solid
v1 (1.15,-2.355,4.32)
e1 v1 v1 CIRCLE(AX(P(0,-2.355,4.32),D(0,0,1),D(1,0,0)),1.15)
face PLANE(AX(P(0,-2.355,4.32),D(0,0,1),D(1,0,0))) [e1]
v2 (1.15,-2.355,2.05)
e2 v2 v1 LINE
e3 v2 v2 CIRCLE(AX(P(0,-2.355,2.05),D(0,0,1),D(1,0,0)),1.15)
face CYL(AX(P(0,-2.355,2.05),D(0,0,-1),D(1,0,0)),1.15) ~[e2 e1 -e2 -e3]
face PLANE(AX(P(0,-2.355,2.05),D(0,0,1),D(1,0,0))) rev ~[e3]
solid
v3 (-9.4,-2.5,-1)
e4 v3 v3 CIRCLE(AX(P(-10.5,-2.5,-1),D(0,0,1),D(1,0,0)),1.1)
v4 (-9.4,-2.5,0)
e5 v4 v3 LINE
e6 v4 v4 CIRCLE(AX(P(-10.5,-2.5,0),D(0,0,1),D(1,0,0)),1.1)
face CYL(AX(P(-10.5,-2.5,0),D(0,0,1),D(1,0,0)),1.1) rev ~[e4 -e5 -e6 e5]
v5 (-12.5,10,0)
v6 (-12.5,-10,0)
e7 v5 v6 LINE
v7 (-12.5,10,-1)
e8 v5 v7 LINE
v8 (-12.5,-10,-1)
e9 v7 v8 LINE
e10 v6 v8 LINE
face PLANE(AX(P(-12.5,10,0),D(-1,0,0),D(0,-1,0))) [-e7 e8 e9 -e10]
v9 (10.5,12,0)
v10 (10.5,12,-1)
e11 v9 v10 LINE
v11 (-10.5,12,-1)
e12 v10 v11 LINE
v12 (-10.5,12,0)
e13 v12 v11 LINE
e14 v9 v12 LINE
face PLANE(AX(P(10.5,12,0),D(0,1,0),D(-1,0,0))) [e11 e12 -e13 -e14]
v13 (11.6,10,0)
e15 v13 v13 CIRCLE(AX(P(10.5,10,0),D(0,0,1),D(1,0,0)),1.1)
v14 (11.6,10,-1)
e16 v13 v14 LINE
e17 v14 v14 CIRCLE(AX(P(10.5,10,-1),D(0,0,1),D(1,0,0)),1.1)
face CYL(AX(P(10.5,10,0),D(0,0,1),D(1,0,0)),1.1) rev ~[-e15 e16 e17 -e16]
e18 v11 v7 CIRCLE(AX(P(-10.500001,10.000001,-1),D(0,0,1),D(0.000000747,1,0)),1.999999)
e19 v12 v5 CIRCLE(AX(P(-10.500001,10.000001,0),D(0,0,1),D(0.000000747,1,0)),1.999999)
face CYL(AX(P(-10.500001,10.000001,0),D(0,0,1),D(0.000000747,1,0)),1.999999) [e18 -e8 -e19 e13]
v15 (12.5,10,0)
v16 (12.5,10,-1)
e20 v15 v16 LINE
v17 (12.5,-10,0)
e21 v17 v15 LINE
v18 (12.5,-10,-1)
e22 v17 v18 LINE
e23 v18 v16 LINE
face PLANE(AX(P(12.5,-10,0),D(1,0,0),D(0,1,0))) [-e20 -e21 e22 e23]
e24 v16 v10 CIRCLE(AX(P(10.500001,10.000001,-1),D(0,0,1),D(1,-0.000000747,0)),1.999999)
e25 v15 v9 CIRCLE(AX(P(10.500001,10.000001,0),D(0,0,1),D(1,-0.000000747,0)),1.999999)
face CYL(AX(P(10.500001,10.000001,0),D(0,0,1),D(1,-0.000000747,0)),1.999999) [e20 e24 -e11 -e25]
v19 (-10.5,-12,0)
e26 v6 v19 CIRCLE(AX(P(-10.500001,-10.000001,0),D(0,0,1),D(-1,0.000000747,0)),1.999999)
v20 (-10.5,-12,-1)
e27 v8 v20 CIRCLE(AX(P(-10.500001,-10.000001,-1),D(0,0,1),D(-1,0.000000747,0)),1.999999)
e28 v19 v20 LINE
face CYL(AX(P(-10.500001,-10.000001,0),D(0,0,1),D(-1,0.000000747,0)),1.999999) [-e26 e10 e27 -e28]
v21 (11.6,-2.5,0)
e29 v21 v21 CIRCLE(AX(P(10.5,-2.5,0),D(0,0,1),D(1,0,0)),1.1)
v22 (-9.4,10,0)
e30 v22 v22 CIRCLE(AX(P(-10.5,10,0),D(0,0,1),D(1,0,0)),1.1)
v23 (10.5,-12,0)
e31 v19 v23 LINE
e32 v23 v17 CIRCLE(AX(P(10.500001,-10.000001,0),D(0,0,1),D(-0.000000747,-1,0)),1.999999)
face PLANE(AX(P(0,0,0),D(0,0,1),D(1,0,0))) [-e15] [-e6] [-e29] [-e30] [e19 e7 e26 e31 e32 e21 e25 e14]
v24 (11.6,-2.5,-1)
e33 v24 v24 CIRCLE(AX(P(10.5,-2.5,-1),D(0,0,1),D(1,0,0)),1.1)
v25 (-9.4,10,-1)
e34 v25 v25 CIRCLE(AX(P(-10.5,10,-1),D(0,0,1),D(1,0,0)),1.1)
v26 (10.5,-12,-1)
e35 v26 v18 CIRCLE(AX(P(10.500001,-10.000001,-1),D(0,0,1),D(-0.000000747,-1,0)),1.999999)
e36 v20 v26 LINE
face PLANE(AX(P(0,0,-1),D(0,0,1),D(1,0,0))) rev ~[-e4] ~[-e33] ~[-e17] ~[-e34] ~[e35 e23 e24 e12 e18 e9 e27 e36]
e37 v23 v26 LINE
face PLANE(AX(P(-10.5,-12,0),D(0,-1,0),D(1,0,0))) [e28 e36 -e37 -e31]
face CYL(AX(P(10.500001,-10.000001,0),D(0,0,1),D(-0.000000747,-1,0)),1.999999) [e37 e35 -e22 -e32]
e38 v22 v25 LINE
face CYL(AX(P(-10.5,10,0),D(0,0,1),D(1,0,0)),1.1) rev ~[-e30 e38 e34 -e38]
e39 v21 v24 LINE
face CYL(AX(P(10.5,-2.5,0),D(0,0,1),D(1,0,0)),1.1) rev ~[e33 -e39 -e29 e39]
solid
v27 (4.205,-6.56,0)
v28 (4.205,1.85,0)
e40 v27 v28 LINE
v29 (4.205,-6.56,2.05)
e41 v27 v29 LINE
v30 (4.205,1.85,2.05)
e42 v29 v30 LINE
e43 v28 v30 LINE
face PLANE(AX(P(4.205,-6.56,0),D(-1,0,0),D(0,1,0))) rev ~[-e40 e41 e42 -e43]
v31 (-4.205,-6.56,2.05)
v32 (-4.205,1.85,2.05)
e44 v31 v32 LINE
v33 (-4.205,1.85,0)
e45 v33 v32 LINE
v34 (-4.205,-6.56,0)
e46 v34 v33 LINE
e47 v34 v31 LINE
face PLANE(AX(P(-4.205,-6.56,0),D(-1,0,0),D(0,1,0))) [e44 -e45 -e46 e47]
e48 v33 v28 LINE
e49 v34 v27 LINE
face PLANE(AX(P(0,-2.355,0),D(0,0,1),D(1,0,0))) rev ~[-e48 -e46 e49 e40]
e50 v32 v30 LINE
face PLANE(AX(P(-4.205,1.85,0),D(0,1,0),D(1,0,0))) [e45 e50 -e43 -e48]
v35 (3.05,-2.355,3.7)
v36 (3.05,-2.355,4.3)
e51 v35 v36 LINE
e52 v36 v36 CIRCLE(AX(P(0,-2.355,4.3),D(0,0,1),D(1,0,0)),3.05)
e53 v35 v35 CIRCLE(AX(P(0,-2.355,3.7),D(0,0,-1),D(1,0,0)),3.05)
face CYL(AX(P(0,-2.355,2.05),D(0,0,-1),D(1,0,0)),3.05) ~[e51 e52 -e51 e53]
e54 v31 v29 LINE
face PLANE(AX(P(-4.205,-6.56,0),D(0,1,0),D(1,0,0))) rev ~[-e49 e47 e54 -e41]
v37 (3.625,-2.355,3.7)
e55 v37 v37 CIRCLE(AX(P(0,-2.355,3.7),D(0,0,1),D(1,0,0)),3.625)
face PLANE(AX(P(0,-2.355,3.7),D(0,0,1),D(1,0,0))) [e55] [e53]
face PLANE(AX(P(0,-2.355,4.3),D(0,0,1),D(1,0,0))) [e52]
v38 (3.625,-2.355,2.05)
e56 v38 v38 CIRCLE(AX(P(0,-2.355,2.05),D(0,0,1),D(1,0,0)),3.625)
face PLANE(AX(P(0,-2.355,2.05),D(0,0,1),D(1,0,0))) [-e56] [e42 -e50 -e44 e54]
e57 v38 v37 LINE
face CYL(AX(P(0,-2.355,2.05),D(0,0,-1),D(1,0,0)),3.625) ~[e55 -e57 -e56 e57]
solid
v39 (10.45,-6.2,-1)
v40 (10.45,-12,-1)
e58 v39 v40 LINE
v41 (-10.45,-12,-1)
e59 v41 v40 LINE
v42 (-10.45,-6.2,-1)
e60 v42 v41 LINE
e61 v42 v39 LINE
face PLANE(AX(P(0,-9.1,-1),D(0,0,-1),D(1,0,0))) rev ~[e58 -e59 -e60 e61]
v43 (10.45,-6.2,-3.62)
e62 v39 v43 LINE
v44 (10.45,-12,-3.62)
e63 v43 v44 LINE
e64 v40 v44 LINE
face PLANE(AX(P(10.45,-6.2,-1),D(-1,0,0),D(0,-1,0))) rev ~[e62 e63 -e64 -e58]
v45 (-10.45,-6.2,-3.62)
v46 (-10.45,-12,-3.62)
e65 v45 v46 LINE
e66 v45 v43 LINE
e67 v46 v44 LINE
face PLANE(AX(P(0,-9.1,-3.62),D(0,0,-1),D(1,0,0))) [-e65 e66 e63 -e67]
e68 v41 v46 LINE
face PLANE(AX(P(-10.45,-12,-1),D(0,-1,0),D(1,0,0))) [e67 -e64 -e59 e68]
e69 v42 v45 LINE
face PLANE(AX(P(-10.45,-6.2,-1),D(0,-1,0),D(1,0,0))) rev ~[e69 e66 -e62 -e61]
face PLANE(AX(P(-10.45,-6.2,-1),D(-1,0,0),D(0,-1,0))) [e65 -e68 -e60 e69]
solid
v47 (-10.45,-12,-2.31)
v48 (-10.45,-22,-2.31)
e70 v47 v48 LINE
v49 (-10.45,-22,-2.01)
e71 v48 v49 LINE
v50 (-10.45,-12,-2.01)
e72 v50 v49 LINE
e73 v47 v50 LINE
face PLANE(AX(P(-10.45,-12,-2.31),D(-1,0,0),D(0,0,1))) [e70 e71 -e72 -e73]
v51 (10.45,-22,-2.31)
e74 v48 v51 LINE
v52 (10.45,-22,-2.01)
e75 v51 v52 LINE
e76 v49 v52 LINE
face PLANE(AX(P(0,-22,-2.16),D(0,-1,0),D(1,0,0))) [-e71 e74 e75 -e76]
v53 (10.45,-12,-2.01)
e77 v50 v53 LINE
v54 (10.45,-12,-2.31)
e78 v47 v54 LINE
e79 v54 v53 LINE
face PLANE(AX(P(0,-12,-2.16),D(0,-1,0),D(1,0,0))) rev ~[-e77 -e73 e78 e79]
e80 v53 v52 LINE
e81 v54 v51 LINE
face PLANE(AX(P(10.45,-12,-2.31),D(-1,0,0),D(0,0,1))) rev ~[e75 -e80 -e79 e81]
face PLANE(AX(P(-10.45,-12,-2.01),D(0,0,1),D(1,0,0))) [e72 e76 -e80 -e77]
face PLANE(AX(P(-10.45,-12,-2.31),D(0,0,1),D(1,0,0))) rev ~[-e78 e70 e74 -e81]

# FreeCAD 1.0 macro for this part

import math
import FreeCAD as App
import Part
import Sketcher


def add_polygon(sketch, points):
    """Adds a closed chain of lines whose ends are joined by coincident constraints."""
    first, n = sketch.GeometryCount, len(points)
    for a, b in zip(points, points[1:] + points[:1]):
        sketch.addGeometry(Part.LineSegment(App.Vector(*a, 0), App.Vector(*b, 0)), False)
    for i in range(n):
        sketch.addConstraint(Sketcher.Constraint("Coincident", first + i, 2, first + (i + 1) % n, 1))

doc = App.newDocument("Part")
body = doc.addObject("PartDesign::Body", "Body")

# Sketch on XY plane
sketch1 = body.newObject("Sketcher::SketchObject", "Sketch")
sketch1.AttachmentSupport = (doc.getObject("XY_Plane"), [""])
sketch1.MapMode = "FlatFace"
sketch1.addGeometry(Part.ArcOfCircle(Part.Circle(App.Vector(10.5, 10, 0), App.Vector(0, 0, 1), 2), math.radians(0), math.radians(90)), False)
sketch1.addGeometry(Part.LineSegment(App.Vector(10.5, 12, 0), App.Vector(-10.5, 12, 0)), False)
sketch1.addGeometry(Part.ArcOfCircle(Part.Circle(App.Vector(-10.5, 10, 0), App.Vector(0, 0, 1), 2), math.radians(90), math.radians(180)), False)
sketch1.addGeometry(Part.LineSegment(App.Vector(-12.5, 10, 0), App.Vector(-12.5, -10, 0)), False)
sketch1.addGeometry(Part.ArcOfCircle(Part.Circle(App.Vector(-10.5, -10, 0), App.Vector(0, 0, 1), 2), math.radians(180), math.radians(270)), False)
sketch1.addGeometry(Part.LineSegment(App.Vector(-10.5, -12, 0), App.Vector(10.5, -12, 0)), False)
sketch1.addGeometry(Part.ArcOfCircle(Part.Circle(App.Vector(10.5, -10, 0), App.Vector(0, 0, 1), 2), math.radians(-90), math.radians(0)), False)
sketch1.addGeometry(Part.LineSegment(App.Vector(12.5, -10, 0), App.Vector(12.5, 10, 0)), False)
sketch1.addConstraint(Sketcher.Constraint("Tangent", 0, 2, 1, 1))
sketch1.addConstraint(Sketcher.Constraint("Tangent", 1, 2, 2, 1))
sketch1.addConstraint(Sketcher.Constraint("Tangent", 2, 2, 3, 1))
sketch1.addConstraint(Sketcher.Constraint("Tangent", 3, 2, 4, 1))
sketch1.addConstraint(Sketcher.Constraint("Tangent", 4, 2, 5, 1))
sketch1.addConstraint(Sketcher.Constraint("Tangent", 5, 2, 6, 1))
sketch1.addConstraint(Sketcher.Constraint("Tangent", 6, 2, 7, 1))
sketch1.addConstraint(Sketcher.Constraint("Tangent", 7, 2, 0, 1))
sketch1.addConstraint(Sketcher.Constraint("Horizontal", 1))
sketch1.addConstraint(Sketcher.Constraint("Vertical", 3))
sketch1.addConstraint(Sketcher.Constraint("Horizontal", 5))
sketch1.addConstraint(Sketcher.Constraint("Vertical", 7))
sketch1.addConstraint(Sketcher.Constraint("Equal", 0, 2))
sketch1.addConstraint(Sketcher.Constraint("Equal", 2, 4))
sketch1.addConstraint(Sketcher.Constraint("Equal", 4, 6))
sketch1.addConstraint(Sketcher.Constraint("Symmetric", 0, 3, 4, 3, -1, 1))
sketch1.addConstraint(Sketcher.Constraint("Radius", 0, 1.999999))
sketch1.addConstraint(Sketcher.Constraint("DistanceX", 1, 2, 1, 1, 21.0))
sketch1.addConstraint(Sketcher.Constraint("DistanceY", 3, 2, 3, 1, 20.0))
pad1 = body.newObject("PartDesign::Pad", "Pad")
pad1.Profile = sketch1
pad1.Length = 1
pad1.Reversed = True

# Sketch on XY plane
sketch2 = body.newObject("Sketcher::SketchObject", "Sketch001")
sketch2.AttachmentSupport = (doc.getObject("XY_Plane"), [""])
sketch2.MapMode = "FlatFace"
sketch2.addGeometry(Part.Circle(App.Vector(-10.5, 10, 0), App.Vector(0, 0, 1), 1.1), False)
sketch2.addGeometry(Part.Circle(App.Vector(-10.5, -2.5, 0), App.Vector(0, 0, 1), 1.1), False)
sketch2.addGeometry(Part.Circle(App.Vector(10.5, -2.5, 0), App.Vector(0, 0, 1), 1.1), False)
sketch2.addGeometry(Part.Circle(App.Vector(10.5, 10, 0), App.Vector(0, 0, 1), 1.1), False)
sketch2.addConstraint(Sketcher.Constraint("Equal", 0, 1))
sketch2.addConstraint(Sketcher.Constraint("Equal", 1, 2))
sketch2.addConstraint(Sketcher.Constraint("Equal", 2, 3))
sketch2.addConstraint(Sketcher.Constraint("Symmetric", 1, 3, 2, 3, -2))
sketch2.addConstraint(Sketcher.Constraint("Symmetric", 0, 3, 3, 3, -2))
sketch2.addConstraint(Sketcher.Constraint("Vertical", 0, 3, 1, 3))
sketch2.addConstraint(Sketcher.Constraint("Diameter", 0, 2.2))
sketch2.addConstraint(Sketcher.Constraint("DistanceY", -1, 1, 0, 3, 10.0))
sketch2.addConstraint(Sketcher.Constraint("DistanceX", 1, 3, 2, 3, 21.0))
sketch2.addConstraint(Sketcher.Constraint("DistanceY", 1, 3, -1, 1, 2.5))
pocket1 = body.newObject("PartDesign::Pocket", "Pocket")
pocket1.Profile = sketch2
pocket1.Type = "ThroughAll"
body2 = doc.addObject("PartDesign::Body", "Body001")

# Sketch on XY plane
sketch3 = body2.newObject("Sketcher::SketchObject", "Sketch002")
sketch3.AttachmentSupport = (doc.getObject("XY_Plane001"), [""])
sketch3.MapMode = "FlatFace"
add_polygon(sketch3, [(-4, 2), (-4, -7), (4, -7), (4, 2)])  # lines 0-3
sketch3.addConstraint(Sketcher.Constraint("Vertical", 0))
sketch3.addConstraint(Sketcher.Constraint("Horizontal", 1))
sketch3.addConstraint(Sketcher.Constraint("Vertical", 2))
sketch3.addConstraint(Sketcher.Constraint("Horizontal", 3))
sketch3.addConstraint(Sketcher.Constraint("Equal", 3, 0))
sketch3.addConstraint(Sketcher.Constraint("DistanceX", 1, 1, 1, 2, 8.41))
sketch3.addConstraint(Sketcher.Constraint("DistanceY", 0, 2, -1, 1, 6.56))
sketch3.addConstraint(Sketcher.Constraint("DistanceX", 0, 2, -1, 1, 4.205))
pad2 = body2.newObject("PartDesign::Pad", "Pad001")
pad2.Profile = sketch3
pad2.Length = 2.05

# Sketch on XY plane
sketch4 = body2.newObject("Sketcher::SketchObject", "Sketch003")
sketch4.AttachmentSupport = (doc.getObject("XY_Plane001"), [""])
sketch4.MapMode = "FlatFace"
sketch4.AttachmentOffset = App.Placement(App.Vector(0, 0, 2.05), App.Rotation())
sketch4.addGeometry(Part.Circle(App.Vector(0, -2.4, 0), App.Vector(0, 0, 1), 3.6), False)
sketch4.addConstraint(Sketcher.Constraint("PointOnObject", 0, 3, -2))
sketch4.addConstraint(Sketcher.Constraint("Diameter", 0, 7.25))
sketch4.addConstraint(Sketcher.Constraint("DistanceY", 0, 3, -1, 1, 2.355))
pad3 = body2.newObject("PartDesign::Pad", "Pad002")
pad3.Profile = sketch4
pad3.Length = 1.65

# Sketch on XY plane
sketch5 = body2.newObject("Sketcher::SketchObject", "Sketch004")
sketch5.AttachmentSupport = (doc.getObject("XY_Plane001"), [""])
sketch5.MapMode = "FlatFace"
sketch5.AttachmentOffset = App.Placement(App.Vector(0, 0, 2.05), App.Rotation())
sketch5.addGeometry(Part.Circle(App.Vector(0, -2.4, 0), App.Vector(0, 0, 1), 3), False)
sketch5.addConstraint(Sketcher.Constraint("PointOnObject", 0, 3, -2))
sketch5.addConstraint(Sketcher.Constraint("Diameter", 0, 6.1))
sketch5.addConstraint(Sketcher.Constraint("DistanceY", 0, 3, -1, 1, 2.355))
pad4 = body2.newObject("PartDesign::Pad", "Pad003")
pad4.Profile = sketch5
pad4.Length = 2.25
body3 = doc.addObject("PartDesign::Body", "Body002")

# Sketch on XY plane
sketch6 = body3.newObject("Sketcher::SketchObject", "Sketch005")
sketch6.AttachmentSupport = (doc.getObject("XY_Plane002"), [""])
sketch6.MapMode = "FlatFace"
sketch6.AttachmentOffset = App.Placement(App.Vector(0, 0, 2.05), App.Rotation())
sketch6.addGeometry(Part.Circle(App.Vector(0, -2.4, 0), App.Vector(0, 0, 1), 1.1), False)
sketch6.addConstraint(Sketcher.Constraint("PointOnObject", 0, 3, -2))
sketch6.addConstraint(Sketcher.Constraint("Diameter", 0, 2.3))
sketch6.addConstraint(Sketcher.Constraint("DistanceY", 0, 3, -1, 1, 2.355))
pad5 = body3.newObject("PartDesign::Pad", "Pad004")
pad5.Profile = sketch6
pad5.Length = 2.27
body4 = doc.addObject("PartDesign::Body", "Body003")

# Sketch on XY plane
sketch7 = body4.newObject("Sketcher::SketchObject", "Sketch006")
sketch7.AttachmentSupport = (doc.getObject("XY_Plane003"), [""])
sketch7.MapMode = "FlatFace"
sketch7.AttachmentOffset = App.Placement(App.Vector(0, 0, -1), App.Rotation())
add_polygon(sketch7, [(-10, -12), (-10, -6), (10, -6), (10, -12)])  # lines 0-3
sketch7.addConstraint(Sketcher.Constraint("Vertical", 0))
sketch7.addConstraint(Sketcher.Constraint("Horizontal", 1))
sketch7.addConstraint(Sketcher.Constraint("Vertical", 2))
sketch7.addConstraint(Sketcher.Constraint("Horizontal", 3))
sketch7.addConstraint(Sketcher.Constraint("DistanceX", 1, 1, 1, 2, 20.9))
sketch7.addConstraint(Sketcher.Constraint("DistanceY", 0, 1, 0, 2, 5.8))
sketch7.addConstraint(Sketcher.Constraint("DistanceY", 2, 2, -1, 1, 12.0))
sketch7.addConstraint(Sketcher.Constraint("DistanceX", 0, 2, -1, 1, 10.45))
pad6 = body4.newObject("PartDesign::Pad", "Pad005")
pad6.Profile = sketch7
pad6.Length = 2.62
pad6.Reversed = True
body5 = doc.addObject("PartDesign::Body", "Body004")

# Sketch on XZ plane
sketch8 = body5.newObject("Sketcher::SketchObject", "Sketch007")
sketch8.AttachmentSupport = (doc.getObject("XZ_Plane004"), [""])
sketch8.MapMode = "FlatFace"
sketch8.AttachmentOffset = App.Placement(App.Vector(0, 0, 12), App.Rotation())
add_polygon(sketch8, [(-10.45, -2.01), (-10.45, -2.31), (10.45, -2.31), (10.45, -2.01)])  # lines 0-3
sketch8.addConstraint(Sketcher.Constraint("Vertical", 0))
sketch8.addConstraint(Sketcher.Constraint("Horizontal", 1))
sketch8.addConstraint(Sketcher.Constraint("Vertical", 2))
sketch8.addConstraint(Sketcher.Constraint("Horizontal", 3))
sketch8.addConstraint(Sketcher.Constraint("DistanceX", 1, 1, 1, 2, 20.9))
sketch8.addConstraint(Sketcher.Constraint("DistanceY", 0, 2, 0, 1, 0.3))
sketch8.addConstraint(Sketcher.Constraint("DistanceX", 0, 2, -1, 1, 10.45))
sketch8.addConstraint(Sketcher.Constraint("DistanceY", 0, 2, -1, 1, 2.31))
pad7 = body5.newObject("PartDesign::Pad", "Pad006")
pad7.Profile = sketch8
pad7.Length = 10

doc.recompute()
